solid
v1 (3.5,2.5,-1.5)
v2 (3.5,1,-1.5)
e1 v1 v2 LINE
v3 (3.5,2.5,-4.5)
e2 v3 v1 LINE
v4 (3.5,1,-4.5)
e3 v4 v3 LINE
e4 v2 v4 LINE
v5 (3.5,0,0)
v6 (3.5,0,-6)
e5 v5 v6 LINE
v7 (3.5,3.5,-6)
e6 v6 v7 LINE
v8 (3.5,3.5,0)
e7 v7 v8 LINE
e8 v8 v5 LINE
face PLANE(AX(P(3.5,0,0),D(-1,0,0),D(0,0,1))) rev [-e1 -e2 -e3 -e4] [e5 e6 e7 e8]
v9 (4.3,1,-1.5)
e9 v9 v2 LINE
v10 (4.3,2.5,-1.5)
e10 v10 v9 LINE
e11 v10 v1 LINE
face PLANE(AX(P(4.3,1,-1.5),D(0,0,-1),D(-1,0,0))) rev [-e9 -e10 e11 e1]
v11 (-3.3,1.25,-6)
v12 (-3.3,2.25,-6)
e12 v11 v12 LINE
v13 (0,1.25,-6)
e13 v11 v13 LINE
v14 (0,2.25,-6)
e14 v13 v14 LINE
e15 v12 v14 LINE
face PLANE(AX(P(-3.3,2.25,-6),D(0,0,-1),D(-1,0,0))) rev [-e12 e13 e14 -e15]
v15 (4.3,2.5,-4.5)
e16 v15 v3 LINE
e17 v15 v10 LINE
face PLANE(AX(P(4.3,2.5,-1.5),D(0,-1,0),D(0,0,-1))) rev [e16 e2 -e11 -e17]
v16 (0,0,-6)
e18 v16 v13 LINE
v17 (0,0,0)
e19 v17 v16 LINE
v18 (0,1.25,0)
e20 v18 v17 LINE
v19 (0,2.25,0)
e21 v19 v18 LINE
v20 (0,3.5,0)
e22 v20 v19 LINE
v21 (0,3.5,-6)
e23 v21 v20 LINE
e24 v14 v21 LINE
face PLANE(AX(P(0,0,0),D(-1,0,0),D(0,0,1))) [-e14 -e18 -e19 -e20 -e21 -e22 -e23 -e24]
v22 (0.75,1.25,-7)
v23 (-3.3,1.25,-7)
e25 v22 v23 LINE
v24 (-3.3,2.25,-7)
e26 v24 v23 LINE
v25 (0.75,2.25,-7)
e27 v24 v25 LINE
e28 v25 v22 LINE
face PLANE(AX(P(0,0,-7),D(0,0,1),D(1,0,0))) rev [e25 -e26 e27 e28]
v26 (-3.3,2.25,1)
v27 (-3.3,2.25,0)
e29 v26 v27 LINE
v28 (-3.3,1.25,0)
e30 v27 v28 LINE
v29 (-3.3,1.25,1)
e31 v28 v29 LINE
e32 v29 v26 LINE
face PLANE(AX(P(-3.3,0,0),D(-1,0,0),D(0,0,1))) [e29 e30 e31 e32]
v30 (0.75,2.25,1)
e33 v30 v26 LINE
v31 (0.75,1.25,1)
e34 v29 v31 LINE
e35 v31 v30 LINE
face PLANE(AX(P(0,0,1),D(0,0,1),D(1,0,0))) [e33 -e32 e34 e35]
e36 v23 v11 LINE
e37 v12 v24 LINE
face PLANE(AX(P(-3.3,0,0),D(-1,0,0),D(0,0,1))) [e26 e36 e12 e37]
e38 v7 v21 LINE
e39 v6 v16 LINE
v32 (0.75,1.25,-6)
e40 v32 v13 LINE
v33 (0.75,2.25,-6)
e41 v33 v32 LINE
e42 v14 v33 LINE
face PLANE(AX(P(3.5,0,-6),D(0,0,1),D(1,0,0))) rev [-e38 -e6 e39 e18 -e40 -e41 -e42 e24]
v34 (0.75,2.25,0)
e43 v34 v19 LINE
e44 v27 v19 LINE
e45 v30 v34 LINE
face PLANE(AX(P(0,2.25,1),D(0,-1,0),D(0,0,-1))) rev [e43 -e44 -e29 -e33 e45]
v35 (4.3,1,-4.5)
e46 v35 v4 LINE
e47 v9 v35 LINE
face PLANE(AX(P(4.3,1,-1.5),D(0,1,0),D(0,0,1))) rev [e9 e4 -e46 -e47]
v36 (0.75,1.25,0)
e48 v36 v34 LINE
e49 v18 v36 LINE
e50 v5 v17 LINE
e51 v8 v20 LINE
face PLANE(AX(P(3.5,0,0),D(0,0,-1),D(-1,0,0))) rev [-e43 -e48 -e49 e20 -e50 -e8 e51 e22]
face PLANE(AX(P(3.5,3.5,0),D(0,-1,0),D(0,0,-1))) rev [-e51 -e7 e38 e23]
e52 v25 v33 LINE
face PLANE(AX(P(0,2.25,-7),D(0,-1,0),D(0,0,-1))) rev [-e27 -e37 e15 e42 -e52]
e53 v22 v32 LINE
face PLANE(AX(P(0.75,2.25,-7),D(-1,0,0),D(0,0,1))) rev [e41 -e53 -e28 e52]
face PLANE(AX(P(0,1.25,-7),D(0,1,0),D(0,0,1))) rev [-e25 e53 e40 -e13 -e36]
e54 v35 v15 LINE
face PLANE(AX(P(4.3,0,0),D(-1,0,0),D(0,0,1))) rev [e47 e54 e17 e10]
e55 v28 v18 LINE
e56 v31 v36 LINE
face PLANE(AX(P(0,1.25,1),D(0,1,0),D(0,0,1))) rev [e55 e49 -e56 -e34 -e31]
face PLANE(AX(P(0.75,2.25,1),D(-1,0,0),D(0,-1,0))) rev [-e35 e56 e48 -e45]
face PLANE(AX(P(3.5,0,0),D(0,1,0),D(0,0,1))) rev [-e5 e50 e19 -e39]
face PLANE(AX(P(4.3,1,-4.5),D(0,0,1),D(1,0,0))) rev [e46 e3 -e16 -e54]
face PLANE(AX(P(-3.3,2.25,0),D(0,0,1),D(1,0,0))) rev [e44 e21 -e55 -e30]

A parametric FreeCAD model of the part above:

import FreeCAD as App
import Part
import Sketcher
from FreeCAD import Vector
Q = App.Units.Quantity

doc = App.newDocument("Part")
body = doc.addObject("PartDesign::Body", "Body")

# Sketch on YZ plane
sketch1 = body.newObject("Sketcher::SketchObject", "Sketch")
sketch1.AttachmentSupport = (doc.getObject("YZ_Plane"), [""])
sketch1.MapMode = "FlatFace"
sketch1.addGeometry(Part.LineSegment(Vector(3.5, 0, 0), Vector(0, 0, 0)), False)
sketch1.addGeometry(Part.LineSegment(Vector(0, 0, 0), Vector(0, -6, 0)), False)
sketch1.addGeometry(Part.LineSegment(Vector(0, -6, 0), Vector(3.5, -6, 0)), False)
sketch1.addGeometry(Part.LineSegment(Vector(3.5, -6, 0), Vector(3.5, 0, 0)), False)
sketch1.addConstraint(Sketcher.Constraint("Coincident", 0, 2, 1, 1))
sketch1.addConstraint(Sketcher.Constraint("Coincident", 1, 2, 2, 1))
sketch1.addConstraint(Sketcher.Constraint("Coincident", 2, 2, 3, 1))
sketch1.addConstraint(Sketcher.Constraint("Coincident", 3, 2, 0, 1))
sketch1.addConstraint(Sketcher.Constraint("Horizontal", 0))
sketch1.addConstraint(Sketcher.Constraint("Vertical", 1))
sketch1.addConstraint(Sketcher.Constraint("Horizontal", 2))
sketch1.addConstraint(Sketcher.Constraint("Vertical", 3))
sketch1.addConstraint(Sketcher.Constraint("Coincident", 0, 2, -1, 1))
sketch1.addConstraint(Sketcher.Constraint("DistanceY", 1, 2, 1, 1, Q("6 mm")))
sketch1.addConstraint(Sketcher.Constraint("DistanceX", 0, 2, 0, 1, Q("3.5 mm")))
pad1 = body.newObject("PartDesign::Pad", "Pad")
pad1.Profile = sketch1
pad1.Length = 3.5

# Sketch on YZ plane
sketch2 = body.newObject("Sketcher::SketchObject", "Sketch001")
sketch2.AttachmentSupport = (doc.getObject("YZ_Plane"), [""])
sketch2.MapMode = "FlatFace"
sketch2.AttachmentOffset = App.Placement(Vector(0, 0, 3.5), App.Rotation())
sketch2.addGeometry(Part.LineSegment(Vector(2.5, -1.5, 0), Vector(1, -1.5, 0)), False)
sketch2.addGeometry(Part.LineSegment(Vector(1, -1.5, 0), Vector(1, -4.5, 0)), False)
sketch2.addGeometry(Part.LineSegment(Vector(1, -4.5, 0), Vector(2.5, -4.5, 0)), False)
sketch2.addGeometry(Part.LineSegment(Vector(2.5, -4.5, 0), Vector(2.5, -1.5, 0)), False)
sketch2.addConstraint(Sketcher.Constraint("Coincident", 0, 2, 1, 1))
sketch2.addConstraint(Sketcher.Constraint("Coincident", 1, 2, 2, 1))
sketch2.addConstraint(Sketcher.Constraint("Coincident", 2, 2, 3, 1))
sketch2.addConstraint(Sketcher.Constraint("Coincident", 3, 2, 0, 1))
sketch2.addConstraint(Sketcher.Constraint("Horizontal", 0))
sketch2.addConstraint(Sketcher.Constraint("Vertical", 1))
sketch2.addConstraint(Sketcher.Constraint("Horizontal", 2))
sketch2.addConstraint(Sketcher.Constraint("Vertical", 3))
sketch2.addConstraint(Sketcher.Constraint("DistanceY", 1, 2, 1, 1, Q("3 mm")))
sketch2.addConstraint(Sketcher.Constraint("DistanceX", 0, 2, 0, 1, Q("1.5 mm")))
sketch2.addConstraint(Sketcher.Constraint("DistanceX", -1, 1, 0, 2, Q("1 mm")))
sketch2.addConstraint(Sketcher.Constraint("DistanceY", 0, 2, -1, 1, Q("1.5 mm")))
pad2 = body.newObject("PartDesign::Pad", "Pad001")
pad2.Profile = sketch2
pad2.Length = 0.8

# Sketch on XY plane
sketch3 = body.newObject("Sketcher::SketchObject", "Sketch002")
sketch3.AttachmentSupport = (doc.getObject("XY_Plane"), [""])
sketch3.MapMode = "FlatFace"
sketch3.addGeometry(Part.LineSegment(Vector(0, 2.2, 0), Vector(0, 1.2, 0)), False)
sketch3.addGeometry(Part.LineSegment(Vector(0, 1.2, 0), Vector(0.8, 1.2, 0)), False)
sketch3.addGeometry(Part.LineSegment(Vector(0.8, 1.2, 0), Vector(0.8, 2.2, 0)), False)
sketch3.addGeometry(Part.LineSegment(Vector(0.8, 2.2, 0), Vector(0, 2.2, 0)), False)
sketch3.addConstraint(Sketcher.Constraint("Coincident", 0, 2, 1, 1))
sketch3.addConstraint(Sketcher.Constraint("Coincident", 1, 2, 2, 1))
sketch3.addConstraint(Sketcher.Constraint("Coincident", 2, 2, 3, 1))
sketch3.addConstraint(Sketcher.Constraint("Coincident", 3, 2, 0, 1))
sketch3.addConstraint(Sketcher.Constraint("Vertical", 0))
sketch3.addConstraint(Sketcher.Constraint("Horizontal", 1))
sketch3.addConstraint(Sketcher.Constraint("Vertical", 2))
sketch3.addConstraint(Sketcher.Constraint("Horizontal", 3))
sketch3.addConstraint(Sketcher.Constraint("PointOnObject", 0, 2, -2))
sketch3.addConstraint(Sketcher.Constraint("DistanceY", 0, 2, 0, 1, Q("1 mm")))
sketch3.addConstraint(Sketcher.Constraint("DistanceX", 1, 1, 1, 2, Q("0.75 mm")))
sketch3.addConstraint(Sketcher.Constraint("DistanceY", -1, 1, 0, 2, Q("1.25 mm")))
pad3 = body.newObject("PartDesign::Pad", "Pad002")
pad3.Profile = sketch3
pad3.Length = 1

# Sketch on YZ plane
sketch4 = body.newObject("Sketcher::SketchObject", "Sketch003")
sketch4.AttachmentSupport = (doc.getObject("YZ_Plane"), [""])
sketch4.MapMode = "FlatFace"
sketch4.addGeometry(Part.LineSegment(Vector(2.2, 0, 0), Vector(1.2, 0, 0)), False)
sketch4.addGeometry(Part.LineSegment(Vector(1.2, 0, 0), Vector(1.2, 1, 0)), False)
sketch4.addGeometry(Part.LineSegment(Vector(1.2, 1, 0), Vector(2.2, 1, 0)), False)
sketch4.addGeometry(Part.LineSegment(Vector(2.2, 1, 0), Vector(2.2, 0, 0)), False)
sketch4.addConstraint(Sketcher.Constraint("Coincident", 0, 2, 1, 1))
sketch4.addConstraint(Sketcher.Constraint("Coincident", 1, 2, 2, 1))
sketch4.addConstraint(Sketcher.Constraint("Coincident", 2, 2, 3, 1))
sketch4.addConstraint(Sketcher.Constraint("Coincident", 3, 2, 0, 1))
sketch4.addConstraint(Sketcher.Constraint("Horizontal", 0))
sketch4.addConstraint(Sketcher.Constraint("Vertical", 1))
sketch4.addConstraint(Sketcher.Constraint("Horizontal", 2))
sketch4.addConstraint(Sketcher.Constraint("Vertical", 3))
sketch4.addConstraint(Sketcher.Constraint("PointOnObject", 0, 2, -1))
sketch4.addConstraint(Sketcher.Constraint("Equal", 2, 1))
sketch4.addConstraint(Sketcher.Constraint("DistanceX", 0, 2, 0, 1, Q("1 mm")))
sketch4.addConstraint(Sketcher.Constraint("DistanceX", -1, 1, 0, 2, Q("1.25 mm")))
pad4 = body.newObject("PartDesign::Pad", "Pad003")
pad4.Profile = sketch4
pad4.Length = 3.3
pad4.Reversed = True

# Sketch on XY plane
sketch5 = body.newObject("Sketcher::SketchObject", "Sketch004")
sketch5.AttachmentSupport = (doc.getObject("XY_Plane"), [""])
sketch5.MapMode = "FlatFace"
sketch5.AttachmentOffset = App.Placement(Vector(0, 0, -6), App.Rotation())
sketch5.addGeometry(Part.LineSegment(Vector(0.8, 2.2, 0), Vector(0.8, 1.2, 0)), False)
sketch5.addGeometry(Part.LineSegment(Vector(0.8, 1.2, 0), Vector(0, 1.2, 0)), False)
sketch5.addGeometry(Part.LineSegment(Vector(0, 1.2, 0), Vector(0, 2.2, 0)), False)
sketch5.addGeometry(Part.LineSegment(Vector(0, 2.2, 0), Vector(0.8, 2.2, 0)), False)
sketch5.addConstraint(Sketcher.Constraint("Coincident", 0, 2, 1, 1))
sketch5.addConstraint(Sketcher.Constraint("Coincident", 1, 2, 2, 1))
sketch5.addConstraint(Sketcher.Constraint("Coincident", 2, 2, 3, 1))
sketch5.addConstraint(Sketcher.Constraint("Coincident", 3, 2, 0, 1))
sketch5.addConstraint(Sketcher.Constraint("Vertical", 0))
sketch5.addConstraint(Sketcher.Constraint("Horizontal", 1))
sketch5.addConstraint(Sketcher.Constraint("Vertical", 2))
sketch5.addConstraint(Sketcher.Constraint("Horizontal", 3))
sketch5.addConstraint(Sketcher.Constraint("PointOnObject", 1, 2, -2))
sketch5.addConstraint(Sketcher.Constraint("DistanceY", 0, 2, 0, 1, Q("1 mm")))
sketch5.addConstraint(Sketcher.Constraint("DistanceX", 1, 2, 1, 1, Q("0.75 mm")))
sketch5.addConstraint(Sketcher.Constraint("DistanceY", -1, 1, 0, 2, Q("1.25 mm")))
pad5 = body.newObject("PartDesign::Pad", "Pad004")
pad5.Profile = sketch5
pad5.Length = 1
pad5.Reversed = True

# Sketch on YZ plane
sketch6 = body.newObject("Sketcher::SketchObject", "Sketch005")
sketch6.AttachmentSupport = (doc.getObject("YZ_Plane"), [""])
sketch6.MapMode = "FlatFace"
sketch6.addGeometry(Part.LineSegment(Vector(2.2, -7, 0), Vector(1.2, -7, 0)), False)
sketch6.addGeometry(Part.LineSegment(Vector(1.2, -7, 0), Vector(1.2, -6, 0)), False)
sketch6.addGeometry(Part.LineSegment(Vector(1.2, -6, 0), Vector(2.2, -6, 0)), False)
sketch6.addGeometry(Part.LineSegment(Vector(2.2, -6, 0), Vector(2.2, -7, 0)), False)
sketch6.addConstraint(Sketcher.Constraint("Coincident", 0, 2, 1, 1))
sketch6.addConstraint(Sketcher.Constraint("Coincident", 1, 2, 2, 1))
sketch6.addConstraint(Sketcher.Constraint("Coincident", 2, 2, 3, 1))
sketch6.addConstraint(Sketcher.Constraint("Coincident", 3, 2, 0, 1))
sketch6.addConstraint(Sketcher.Constraint("Horizontal", 0))
sketch6.addConstraint(Sketcher.Constraint("Vertical", 1))
sketch6.addConstraint(Sketcher.Constraint("Horizontal", 2))
sketch6.addConstraint(Sketcher.Constraint("Vertical", 3))
sketch6.addConstraint(Sketcher.Constraint("Equal", 2, 1))
sketch6.addConstraint(Sketcher.Constraint("DistanceX", 0, 2, 0, 1, Q("1 mm")))
sketch6.addConstraint(Sketcher.Constraint("DistanceY", 0, 2, -1, 1, Q("7 mm")))
sketch6.addConstraint(Sketcher.Constraint("DistanceX", -1, 1, 0, 2, Q("1.25 mm")))
pad6 = body.newObject("PartDesign::Pad", "Pad005")
pad6.Profile = sketch6
pad6.Length = 3.3
pad6.Reversed = True

doc.recompute()
